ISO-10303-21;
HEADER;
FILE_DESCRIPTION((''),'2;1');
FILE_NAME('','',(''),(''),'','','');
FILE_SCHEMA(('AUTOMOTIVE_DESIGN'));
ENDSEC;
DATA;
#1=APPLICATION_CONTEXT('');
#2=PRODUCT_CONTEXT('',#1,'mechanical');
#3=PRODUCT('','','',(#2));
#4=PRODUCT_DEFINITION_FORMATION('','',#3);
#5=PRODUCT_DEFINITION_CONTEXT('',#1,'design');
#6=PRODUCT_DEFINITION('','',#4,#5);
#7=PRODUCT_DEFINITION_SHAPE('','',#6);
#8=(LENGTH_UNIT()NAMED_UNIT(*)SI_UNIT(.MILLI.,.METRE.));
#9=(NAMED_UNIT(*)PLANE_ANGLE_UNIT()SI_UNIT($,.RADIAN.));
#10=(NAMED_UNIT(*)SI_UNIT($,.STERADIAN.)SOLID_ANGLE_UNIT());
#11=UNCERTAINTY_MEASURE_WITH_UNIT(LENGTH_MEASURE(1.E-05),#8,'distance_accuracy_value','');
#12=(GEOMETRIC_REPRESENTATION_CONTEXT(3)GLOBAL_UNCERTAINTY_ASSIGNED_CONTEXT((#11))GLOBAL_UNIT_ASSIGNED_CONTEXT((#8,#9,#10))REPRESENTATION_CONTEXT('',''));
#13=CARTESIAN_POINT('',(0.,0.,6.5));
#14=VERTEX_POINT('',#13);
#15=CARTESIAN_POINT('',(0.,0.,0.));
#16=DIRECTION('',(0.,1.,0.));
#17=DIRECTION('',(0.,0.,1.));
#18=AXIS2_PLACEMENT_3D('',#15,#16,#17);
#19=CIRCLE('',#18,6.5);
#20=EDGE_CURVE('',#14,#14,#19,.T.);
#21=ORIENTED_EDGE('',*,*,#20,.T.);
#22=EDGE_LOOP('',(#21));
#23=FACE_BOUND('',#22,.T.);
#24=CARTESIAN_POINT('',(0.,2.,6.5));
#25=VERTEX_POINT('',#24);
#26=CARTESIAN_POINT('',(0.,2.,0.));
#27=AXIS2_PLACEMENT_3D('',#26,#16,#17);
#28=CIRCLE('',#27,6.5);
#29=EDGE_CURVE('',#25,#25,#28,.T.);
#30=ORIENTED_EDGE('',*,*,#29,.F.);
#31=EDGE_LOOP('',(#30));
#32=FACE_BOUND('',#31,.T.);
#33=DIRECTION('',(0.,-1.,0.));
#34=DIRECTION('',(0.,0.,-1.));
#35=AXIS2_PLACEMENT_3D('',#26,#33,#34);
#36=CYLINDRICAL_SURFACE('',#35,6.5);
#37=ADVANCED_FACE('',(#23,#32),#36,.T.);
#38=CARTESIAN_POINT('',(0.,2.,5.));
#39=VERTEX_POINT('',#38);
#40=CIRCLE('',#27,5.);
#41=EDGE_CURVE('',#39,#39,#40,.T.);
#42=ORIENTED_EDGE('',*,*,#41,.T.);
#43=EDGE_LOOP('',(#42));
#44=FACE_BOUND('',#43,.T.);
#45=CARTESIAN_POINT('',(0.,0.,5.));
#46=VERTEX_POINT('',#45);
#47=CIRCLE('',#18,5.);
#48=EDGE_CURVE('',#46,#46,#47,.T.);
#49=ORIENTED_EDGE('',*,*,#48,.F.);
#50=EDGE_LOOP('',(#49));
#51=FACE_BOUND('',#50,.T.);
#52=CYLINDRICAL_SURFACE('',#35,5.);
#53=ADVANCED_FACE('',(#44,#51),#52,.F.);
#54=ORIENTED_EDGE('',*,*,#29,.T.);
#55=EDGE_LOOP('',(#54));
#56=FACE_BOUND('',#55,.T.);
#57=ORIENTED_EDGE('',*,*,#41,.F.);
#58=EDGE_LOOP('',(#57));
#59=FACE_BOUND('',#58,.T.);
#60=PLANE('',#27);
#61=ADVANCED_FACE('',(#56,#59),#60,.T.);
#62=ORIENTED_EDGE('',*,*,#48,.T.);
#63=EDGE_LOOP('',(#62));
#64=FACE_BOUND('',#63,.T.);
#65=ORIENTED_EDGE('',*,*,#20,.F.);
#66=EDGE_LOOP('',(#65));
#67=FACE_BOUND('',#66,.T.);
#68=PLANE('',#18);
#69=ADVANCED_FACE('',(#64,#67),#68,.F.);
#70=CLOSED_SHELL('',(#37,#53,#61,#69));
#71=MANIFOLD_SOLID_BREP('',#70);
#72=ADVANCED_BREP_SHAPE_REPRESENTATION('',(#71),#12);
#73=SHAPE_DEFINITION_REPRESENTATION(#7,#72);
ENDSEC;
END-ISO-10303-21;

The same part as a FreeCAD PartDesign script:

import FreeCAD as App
import Part
import Sketcher

V = App.Vector
Q = App.Units.Quantity

doc = App.newDocument("Part")
params = doc.addObject("Spreadsheet::Sheet", "Params")
for row, (alias, value) in enumerate([
    ("sketch1_diameter", "13 mm"),
    ("sketch1_diameter2", "10 mm"),
    ("pad1_length", "2 mm"),
], start=1):
    params.set(f"A{row}", alias)
    params.set(f"B{row}", "=" + value)
    params.setAlias(f"B{row}", alias)

body = doc.addObject("PartDesign::Body", "Body")

sketch1 = doc.addObject("Sketcher::SketchObject", "Sketch")
body.addObject(sketch1)
sketch1.AttachmentSupport = (doc.XZ_Plane, [""])
sketch1.MapMode = "FlatFace"
sketch1.addGeometry([
    Part.Circle(V(0, 0, 0), V(0, 0, 1), 6),
    Part.Circle(V(0, 0, 0), V(0, 0, 1), 5),
], False)
sketch1.addConstraint([
    Sketcher.Constraint("Coincident", 0, 3, -1, 1),
    Sketcher.Constraint("Coincident", 1, 3, -1, 1),
    Sketcher.Constraint("Diameter", 0, Q("13 mm")),
    Sketcher.Constraint("Diameter", 1, Q("10 mm")),
])
sketch1.setExpression("Constraints[2]", "Params.sketch1_diameter")
sketch1.setExpression("Constraints[3]", "Params.sketch1_diameter2")
pad1 = doc.addObject("PartDesign::Pad", "Pad")
body.addObject(pad1)
pad1.Profile = sketch1
pad1.setExpression("Length", "Params.pad1_length")
pad1.Reversed = True

doc.recompute()
